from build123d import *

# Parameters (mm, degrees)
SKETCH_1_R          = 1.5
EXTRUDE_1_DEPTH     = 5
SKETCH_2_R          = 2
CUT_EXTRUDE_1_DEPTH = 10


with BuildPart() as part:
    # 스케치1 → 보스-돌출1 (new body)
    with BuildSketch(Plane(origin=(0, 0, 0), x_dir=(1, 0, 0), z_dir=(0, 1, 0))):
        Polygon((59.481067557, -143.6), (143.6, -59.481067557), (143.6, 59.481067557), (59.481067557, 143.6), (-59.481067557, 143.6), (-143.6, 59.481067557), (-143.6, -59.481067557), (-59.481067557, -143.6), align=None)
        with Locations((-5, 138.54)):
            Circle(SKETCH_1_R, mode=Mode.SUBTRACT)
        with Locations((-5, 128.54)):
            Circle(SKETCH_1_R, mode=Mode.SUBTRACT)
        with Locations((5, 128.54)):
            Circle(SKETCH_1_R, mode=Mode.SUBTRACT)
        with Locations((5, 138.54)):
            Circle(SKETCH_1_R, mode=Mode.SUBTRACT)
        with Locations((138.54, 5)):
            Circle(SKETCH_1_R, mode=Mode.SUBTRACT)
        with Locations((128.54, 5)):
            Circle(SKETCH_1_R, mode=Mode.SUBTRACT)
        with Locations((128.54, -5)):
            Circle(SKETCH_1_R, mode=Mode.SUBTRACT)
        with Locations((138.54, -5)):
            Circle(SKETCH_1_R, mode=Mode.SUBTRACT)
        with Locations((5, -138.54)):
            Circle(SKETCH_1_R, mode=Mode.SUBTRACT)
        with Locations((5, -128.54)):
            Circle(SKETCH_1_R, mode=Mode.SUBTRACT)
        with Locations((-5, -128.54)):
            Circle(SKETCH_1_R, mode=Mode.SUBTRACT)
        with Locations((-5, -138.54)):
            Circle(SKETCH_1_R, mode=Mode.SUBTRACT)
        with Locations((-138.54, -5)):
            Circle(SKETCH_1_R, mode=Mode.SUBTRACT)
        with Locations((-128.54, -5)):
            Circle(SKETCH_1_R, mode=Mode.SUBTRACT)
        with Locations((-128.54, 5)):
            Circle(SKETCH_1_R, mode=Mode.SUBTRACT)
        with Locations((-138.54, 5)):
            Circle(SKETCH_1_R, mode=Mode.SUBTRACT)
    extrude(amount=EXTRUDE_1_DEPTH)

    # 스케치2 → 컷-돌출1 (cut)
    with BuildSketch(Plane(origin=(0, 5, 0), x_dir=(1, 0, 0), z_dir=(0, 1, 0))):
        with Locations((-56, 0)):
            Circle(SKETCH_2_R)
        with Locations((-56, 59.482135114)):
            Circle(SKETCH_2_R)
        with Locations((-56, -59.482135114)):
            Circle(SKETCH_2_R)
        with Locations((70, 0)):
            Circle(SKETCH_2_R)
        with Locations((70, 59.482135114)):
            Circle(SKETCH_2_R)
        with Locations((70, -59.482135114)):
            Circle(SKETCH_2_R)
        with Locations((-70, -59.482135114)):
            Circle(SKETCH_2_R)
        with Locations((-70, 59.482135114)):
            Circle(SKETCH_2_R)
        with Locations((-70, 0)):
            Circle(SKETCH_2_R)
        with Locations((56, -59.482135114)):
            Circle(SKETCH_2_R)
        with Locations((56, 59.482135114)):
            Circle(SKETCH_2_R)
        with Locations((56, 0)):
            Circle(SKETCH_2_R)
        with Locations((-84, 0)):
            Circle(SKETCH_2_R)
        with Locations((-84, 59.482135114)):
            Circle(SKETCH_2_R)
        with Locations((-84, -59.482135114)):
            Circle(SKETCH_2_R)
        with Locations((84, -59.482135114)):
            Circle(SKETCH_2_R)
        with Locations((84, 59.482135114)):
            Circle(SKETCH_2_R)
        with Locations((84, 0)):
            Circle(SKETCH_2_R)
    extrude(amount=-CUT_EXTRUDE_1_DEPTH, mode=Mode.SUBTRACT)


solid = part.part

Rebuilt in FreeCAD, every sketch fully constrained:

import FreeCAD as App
import Part
import Sketcher

doc = App.newDocument("Part")
body = doc.addObject("PartDesign::Body", "Body")

# Sketch on XZ plane
sketch1 = body.newObject("Sketcher::SketchObject", "Sketch")
sketch1.AttachmentSupport = (doc.getObject("XZ_Plane"), [""])
sketch1.MapMode = "FlatFace"
sketch1.addGeometry(Part.LineSegment(App.Vector(59.5, 143.6, 0), App.Vector(143.6, 59.5, 0)), False)
sketch1.addGeometry(Part.LineSegment(App.Vector(143.6, 59.5, 0), App.Vector(143.6, -59.5, 0)), False)
sketch1.addGeometry(Part.LineSegment(App.Vector(143.6, -59.5, 0), App.Vector(59.5, -143.6, 0)), False)
sketch1.addGeometry(Part.LineSegment(App.Vector(59.5, -143.6, 0), App.Vector(-59.5, -143.6, 0)), False)
sketch1.addGeometry(Part.LineSegment(App.Vector(-59.5, -143.6, 0), App.Vector(-143.6, -59.5, 0)), False)
sketch1.addGeometry(Part.LineSegment(App.Vector(-143.6, -59.5, 0), App.Vector(-143.6, 59.5, 0)), False)
sketch1.addGeometry(Part.LineSegment(App.Vector(-143.6, 59.5, 0), App.Vector(-59.5, 143.6, 0)), False)
sketch1.addGeometry(Part.LineSegment(App.Vector(-59.5, 143.6, 0), App.Vector(59.5, 143.6, 0)), False)
sketch1.addGeometry(Part.Circle(App.Vector(-5, 138.5, 0), App.Vector(0, 0, 1), 1.5), False)
sketch1.addGeometry(Part.Circle(App.Vector(-5, 128.5, 0), App.Vector(0, 0, 1), 1.5), False)
sketch1.addGeometry(Part.Circle(App.Vector(-138.5, 5, 0), App.Vector(0, 0, 1), 1.5), False)
sketch1.addGeometry(Part.Circle(App.Vector(-128.5, 5, 0), App.Vector(0, 0, 1), 1.5), False)
sketch1.addGeometry(Part.Circle(App.Vector(5, 138.5, 0), App.Vector(0, 0, 1), 1.5), False)
sketch1.addGeometry(Part.Circle(App.Vector(5, 128.5, 0), App.Vector(0, 0, 1), 1.5), False)
sketch1.addGeometry(Part.Circle(App.Vector(128.5, 5, 0), App.Vector(0, 0, 1), 1.5), False)
sketch1.addGeometry(Part.Circle(App.Vector(138.5, 5, 0), App.Vector(0, 0, 1), 1.5), False)
sketch1.addGeometry(Part.Circle(App.Vector(-138.5, -5, 0), App.Vector(0, 0, 1), 1.5), False)
sketch1.addGeometry(Part.Circle(App.Vector(-128.5, -5, 0), App.Vector(0, 0, 1), 1.5), False)
sketch1.addGeometry(Part.Circle(App.Vector(-5, -128.5, 0), App.Vector(0, 0, 1), 1.5), False)
sketch1.addGeometry(Part.Circle(App.Vector(-5, -138.5, 0), App.Vector(0, 0, 1), 1.5), False)
sketch1.addGeometry(Part.Circle(App.Vector(128.5, -5, 0), App.Vector(0, 0, 1), 1.5), False)
sketch1.addGeometry(Part.Circle(App.Vector(138.5, -5, 0), App.Vector(0, 0, 1), 1.5), False)
sketch1.addGeometry(Part.Circle(App.Vector(5, -128.5, 0), App.Vector(0, 0, 1), 1.5), False)
sketch1.addGeometry(Part.Circle(App.Vector(5, -138.5, 0), App.Vector(0, 0, 1), 1.5), False)
sketch1.addConstraint(Sketcher.Constraint("Coincident", 0, 2, 1, 1))
sketch1.addConstraint(Sketcher.Constraint("Coincident", 1, 2, 2, 1))
sketch1.addConstraint(Sketcher.Constraint("Coincident", 2, 2, 3, 1))
sketch1.addConstraint(Sketcher.Constraint("Coincident", 3, 2, 4, 1))
sketch1.addConstraint(Sketcher.Constraint("Coincident", 4, 2, 5, 1))
sketch1.addConstraint(Sketcher.Constraint("Coincident", 5, 2, 6, 1))
sketch1.addConstraint(Sketcher.Constraint("Coincident", 6, 2, 7, 1))
sketch1.addConstraint(Sketcher.Constraint("Coincident", 7, 2, 0, 1))
sketch1.addConstraint(Sketcher.Constraint("Vertical", 1))
sketch1.addConstraint(Sketcher.Constraint("Horizontal", 3))
sketch1.addConstraint(Sketcher.Constraint("Vertical", 5))
sketch1.addConstraint(Sketcher.Constraint("Horizontal", 7))
sketch1.addConstraint(Sketcher.Constraint("Equal", 8, 9))
sketch1.addConstraint(Sketcher.Constraint("Equal", 9, 10))
sketch1.addConstraint(Sketcher.Constraint("Equal", 10, 11))
sketch1.addConstraint(Sketcher.Constraint("Equal", 11, 12))
sketch1.addConstraint(Sketcher.Constraint("Equal", 12, 13))
sketch1.addConstraint(Sketcher.Constraint("Equal", 13, 14))
sketch1.addConstraint(Sketcher.Constraint("Equal", 14, 15))
sketch1.addConstraint(Sketcher.Constraint("Equal", 15, 16))
sketch1.addConstraint(Sketcher.Constraint("Equal", 16, 17))
sketch1.addConstraint(Sketcher.Constraint("Equal", 17, 18))
sketch1.addConstraint(Sketcher.Constraint("Equal", 18, 19))
sketch1.addConstraint(Sketcher.Constraint("Equal", 19, 20))
sketch1.addConstraint(Sketcher.Constraint("Equal", 20, 21))
sketch1.addConstraint(Sketcher.Constraint("Equal", 21, 22))
sketch1.addConstraint(Sketcher.Constraint("Equal", 22, 23))
sketch1.addConstraint(Sketcher.Constraint("Symmetric", 15, 3, 16, 3, -1, 1))
sketch1.addConstraint(Sketcher.Constraint("Symmetric", 14, 3, 17, 3, -1, 1))
sketch1.addConstraint(Sketcher.Constraint("Symmetric", 13, 3, 18, 3, -1, 1))
sketch1.addConstraint(Sketcher.Constraint("Symmetric", 12, 3, 19, 3, -1, 1))
sketch1.addConstraint(Sketcher.Constraint("Symmetric", 11, 3, 20, 3, -1, 1))
sketch1.addConstraint(Sketcher.Constraint("Symmetric", 10, 3, 21, 3, -1, 1))
sketch1.addConstraint(Sketcher.Constraint("Symmetric", 9, 3, 22, 3, -1, 1))
sketch1.addConstraint(Sketcher.Constraint("Symmetric", 8, 3, 23, 3, -1, 1))
sketch1.addConstraint(Sketcher.Constraint("Symmetric", 0, 2, 4, 2, -1, 1))
sketch1.addConstraint(Sketcher.Constraint("Symmetric", 2, 2, 6, 2, -1, 1))
sketch1.addConstraint(Sketcher.Constraint("Symmetric", 8, 3, 12, 3, -2))
sketch1.addConstraint(Sketcher.Constraint("Symmetric", 9, 3, 13, 3, -2))
sketch1.addConstraint(Sketcher.Constraint("Symmetric", 11, 3, 14, 3, -2))
sketch1.addConstraint(Sketcher.Constraint("Symmetric", 10, 3, 15, 3, -2))
sketch1.addConstraint(Sketcher.Constraint("Perpendicular", 0, 2))
sketch1.addConstraint(Sketcher.Constraint("Perpendicular", 2, 4))
sketch1.addConstraint(Sketcher.Constraint("Perpendicular", 4, 6))
sketch1.addConstraint(Sketcher.Constraint("Horizontal", 10, 3, 11, 3))
sketch1.addConstraint(Sketcher.Constraint("Horizontal", 1, 2, 4, 2))
sketch1.addConstraint(Sketcher.Constraint("Vertical", 8, 3, 9, 3))
sketch1.addConstraint(Sketcher.Constraint("Vertical", 3, 2, 6, 2))
sketch1.addConstraint(Sketcher.Constraint("Equal", 7, 1))
sketch1.addConstraint(Sketcher.Constraint("Diameter", 8, 3.0))
sketch1.addConstraint(Sketcher.Constraint("DistanceX", 8, 3, -1, 1, 5.0))
sketch1.addConstraint(Sketcher.Constraint("DistanceY", -1, 1, 10, 3, 5.0))
sketch1.addConstraint(Sketcher.Constraint("DistanceY", 9, 3, 8, 3, 10.0))
sketch1.addConstraint(Sketcher.Constraint("DistanceX", 10, 3, 11, 3, 10.0))
sketch1.addConstraint(Sketcher.Constraint("DistanceX", -1, 1, 0, 2, 143.6))
sketch1.addConstraint(Sketcher.Constraint("DistanceY", -1, 1, 8, 3, 138.54))
sketch1.addConstraint(Sketcher.Constraint("DistanceX", 10, 3, -1, 1, 138.54))
sketch1.addConstraint(Sketcher.Constraint("DistanceX", 3, 2, 3, 1, 118.962135))
pad1 = body.newObject("PartDesign::Pad", "Pad")
pad1.Profile = sketch1
pad1.Length = 5
pad1.Reversed = True

# Sketch on XZ plane
sketch2 = body.newObject("Sketcher::SketchObject", "Sketch001")
sketch2.AttachmentSupport = (doc.getObject("XZ_Plane"), [""])
sketch2.MapMode = "FlatFace"
sketch2.AttachmentOffset = App.Placement(App.Vector(0, 0, -5), App.Rotation())
sketch2.addGeometry(Part.Circle(App.Vector(-56, 0, 0), App.Vector(0, 0, 1), 2), False)
sketch2.addGeometry(Part.Circle(App.Vector(-56, -59.5, 0), App.Vector(0, 0, 1), 2), False)
sketch2.addGeometry(Part.Circle(App.Vector(-56, 59.5, 0), App.Vector(0, 0, 1), 2), False)
sketch2.addGeometry(Part.Circle(App.Vector(70, 0, 0), App.Vector(0, 0, 1), 2), False)
sketch2.addGeometry(Part.Circle(App.Vector(70, -59.5, 0), App.Vector(0, 0, 1), 2), False)
sketch2.addGeometry(Part.Circle(App.Vector(70, 59.5, 0), App.Vector(0, 0, 1), 2), False)
sketch2.addGeometry(Part.Circle(App.Vector(-70, 59.5, 0), App.Vector(0, 0, 1), 2), False)
sketch2.addGeometry(Part.Circle(App.Vector(-70, -59.5, 0), App.Vector(0, 0, 1), 2), False)
sketch2.addGeometry(Part.Circle(App.Vector(-70, 0, 0), App.Vector(0, 0, 1), 2), False)
sketch2.addGeometry(Part.Circle(App.Vector(56, 59.5, 0), App.Vector(0, 0, 1), 2), False)
sketch2.addGeometry(Part.Circle(App.Vector(56, -59.5, 0), App.Vector(0, 0, 1), 2), False)
sketch2.addGeometry(Part.Circle(App.Vector(56, 0, 0), App.Vector(0, 0, 1), 2), False)
sketch2.addGeometry(Part.Circle(App.Vector(-84, 0, 0), App.Vector(0, 0, 1), 2), False)
sketch2.addGeometry(Part.Circle(App.Vector(-84, -59.5, 0), App.Vector(0, 0, 1), 2), False)
sketch2.addGeometry(Part.Circle(App.Vector(-84, 59.5, 0), App.Vector(0, 0, 1), 2), False)
sketch2.addGeometry(Part.Circle(App.Vector(84, 59.5, 0), App.Vector(0, 0, 1), 2), False)
sketch2.addGeometry(Part.Circle(App.Vector(84, -59.5, 0), App.Vector(0, 0, 1), 2), False)
sketch2.addGeometry(Part.Circle(App.Vector(84, 0, 0), App.Vector(0, 0, 1), 2), False)
sketch2.addConstraint(Sketcher.Constraint("Equal", 0, 1))
sketch2.addConstraint(Sketcher.Constraint("Equal", 1, 2))
sketch2.addConstraint(Sketcher.Constraint("Equal", 2, 3))
sketch2.addConstraint(Sketcher.Constraint("Equal", 3, 4))
sketch2.addConstraint(Sketcher.Constraint("Equal", 4, 5))
sketch2.addConstraint(Sketcher.Constraint("Equal", 5, 6))
sketch2.addConstraint(Sketcher.Constraint("Equal", 6, 7))
sketch2.addConstraint(Sketcher.Constraint("Equal", 7, 8))
sketch2.addConstraint(Sketcher.Constraint("Equal", 8, 9))
sketch2.addConstraint(Sketcher.Constraint("Equal", 9, 10))
sketch2.addConstraint(Sketcher.Constraint("Equal", 10, 11))
sketch2.addConstraint(Sketcher.Constraint("Equal", 11, 12))
sketch2.addConstraint(Sketcher.Constraint("Equal", 12, 13))
sketch2.addConstraint(Sketcher.Constraint("Equal", 13, 14))
sketch2.addConstraint(Sketcher.Constraint("Equal", 14, 15))
sketch2.addConstraint(Sketcher.Constraint("Equal", 15, 16))
sketch2.addConstraint(Sketcher.Constraint("Equal", 16, 17))
sketch2.addConstraint(Sketcher.Constraint("Symmetric", 4, 3, 6, 3, -1, 1))
sketch2.addConstraint(Sketcher.Constraint("Symmetric", 5, 3, 7, 3, -1, 1))
sketch2.addConstraint(Sketcher.Constraint("Symmetric", 3, 3, 8, 3, -1, 1))
sketch2.addConstraint(Sketcher.Constraint("Symmetric", 1, 3, 9, 3, -1, 1))
sketch2.addConstraint(Sketcher.Constraint("Symmetric", 2, 3, 10, 3, -1, 1))
sketch2.addConstraint(Sketcher.Constraint("Symmetric", 0, 3, 11, 3, -1, 1))
sketch2.addConstraint(Sketcher.Constraint("Symmetric", 13, 3, 15, 3, -1, 1))
sketch2.addConstraint(Sketcher.Constraint("Symmetric", 14, 3, 16, 3, -1, 1))
sketch2.addConstraint(Sketcher.Constraint("Symmetric", 12, 3, 17, 3, -1, 1))
sketch2.addConstraint(Sketcher.Constraint("Symmetric", 5, 3, 6, 3, -2))
sketch2.addConstraint(Sketcher.Constraint("Symmetric", 2, 3, 9, 3, -2))
sketch2.addConstraint(Sketcher.Constraint("Symmetric", 14, 3, 15, 3, -2))
sketch2.addConstraint(Sketcher.Constraint("PointOnObject", 0, 3, -1))
sketch2.addConstraint(Sketcher.Constraint("PointOnObject", 3, 3, -1))
sketch2.addConstraint(Sketcher.Constraint("PointOnObject", 12, 3, -1))
sketch2.addConstraint(Sketcher.Constraint("Horizontal", 1, 3, 4, 3))
sketch2.addConstraint(Sketcher.Constraint("Horizontal", 10, 3, 13, 3))
sketch2.addConstraint(Sketcher.Constraint("Vertical", 0, 3, 1, 3))
sketch2.addConstraint(Sketcher.Constraint("Vertical", 3, 3, 4, 3))
sketch2.addConstraint(Sketcher.Constraint("Vertical", 12, 3, 13, 3))
sketch2.addConstraint(Sketcher.Constraint("Diameter", 0, 4.0))
sketch2.addConstraint(Sketcher.Constraint("DistanceX", 0, 3, -1, 1, 56.0))
sketch2.addConstraint(Sketcher.Constraint("DistanceX", -1, 1, 3, 3, 70.0))
sketch2.addConstraint(Sketcher.Constraint("DistanceX", 12, 3, -1, 1, 84.0))
sketch2.addConstraint(Sketcher.Constraint("DistanceY", 1, 3, 2, 3, 118.96427))
pocket1 = body.newObject("PartDesign::Pocket", "Pocket")
pocket1.Profile = sketch2
pocket1.Length = 10
pocket1.Reversed = True

doc.recompute()
